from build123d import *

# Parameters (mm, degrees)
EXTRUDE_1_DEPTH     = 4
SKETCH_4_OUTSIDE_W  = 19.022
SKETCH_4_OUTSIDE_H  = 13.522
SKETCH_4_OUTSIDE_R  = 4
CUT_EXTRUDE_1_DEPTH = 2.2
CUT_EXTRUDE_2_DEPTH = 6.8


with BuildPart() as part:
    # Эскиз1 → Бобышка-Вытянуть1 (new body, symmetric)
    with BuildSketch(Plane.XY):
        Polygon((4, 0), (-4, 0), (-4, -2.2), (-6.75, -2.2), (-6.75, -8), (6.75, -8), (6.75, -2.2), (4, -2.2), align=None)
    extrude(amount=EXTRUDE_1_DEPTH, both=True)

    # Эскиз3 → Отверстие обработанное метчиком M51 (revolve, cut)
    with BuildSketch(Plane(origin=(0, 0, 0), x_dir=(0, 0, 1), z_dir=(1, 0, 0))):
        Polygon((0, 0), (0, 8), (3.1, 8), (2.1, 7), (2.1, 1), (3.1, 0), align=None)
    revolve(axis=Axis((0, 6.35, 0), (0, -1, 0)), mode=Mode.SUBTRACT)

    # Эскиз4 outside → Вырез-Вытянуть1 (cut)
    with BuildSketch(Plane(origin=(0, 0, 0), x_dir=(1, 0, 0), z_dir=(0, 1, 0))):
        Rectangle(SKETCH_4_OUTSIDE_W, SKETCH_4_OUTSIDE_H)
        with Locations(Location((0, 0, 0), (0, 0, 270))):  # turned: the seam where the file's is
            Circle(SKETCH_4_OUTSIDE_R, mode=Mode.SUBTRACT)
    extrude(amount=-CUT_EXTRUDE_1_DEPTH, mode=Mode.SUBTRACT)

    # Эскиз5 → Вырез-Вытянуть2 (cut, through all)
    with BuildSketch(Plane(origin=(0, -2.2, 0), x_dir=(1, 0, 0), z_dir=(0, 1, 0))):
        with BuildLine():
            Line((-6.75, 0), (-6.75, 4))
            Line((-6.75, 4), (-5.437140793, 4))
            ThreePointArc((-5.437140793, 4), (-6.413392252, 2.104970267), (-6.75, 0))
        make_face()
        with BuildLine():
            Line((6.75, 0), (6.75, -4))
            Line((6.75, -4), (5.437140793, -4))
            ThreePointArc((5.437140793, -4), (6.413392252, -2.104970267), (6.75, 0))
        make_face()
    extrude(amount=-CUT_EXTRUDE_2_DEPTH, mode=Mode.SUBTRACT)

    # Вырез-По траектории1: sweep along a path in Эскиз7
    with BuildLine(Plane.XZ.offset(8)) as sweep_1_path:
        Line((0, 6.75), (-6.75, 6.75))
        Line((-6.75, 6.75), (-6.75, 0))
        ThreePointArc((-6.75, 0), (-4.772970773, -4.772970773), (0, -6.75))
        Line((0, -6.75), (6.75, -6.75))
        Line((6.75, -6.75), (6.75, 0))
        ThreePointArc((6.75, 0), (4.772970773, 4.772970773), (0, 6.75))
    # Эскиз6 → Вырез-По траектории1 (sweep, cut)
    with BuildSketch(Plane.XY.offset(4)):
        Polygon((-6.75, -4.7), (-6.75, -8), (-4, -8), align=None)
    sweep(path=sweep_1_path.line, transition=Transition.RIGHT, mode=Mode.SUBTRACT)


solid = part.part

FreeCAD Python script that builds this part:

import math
import FreeCAD as App
import Part
import Sketcher
from FreeCAD import Vector
Q = App.Units.Quantity


def add_polygon(sketch, points):
    """Adds a closed chain of lines whose ends are joined by coincident constraints."""
    first, n = sketch.GeometryCount, len(points)
    for a, b in zip(points, points[1:] + points[:1]):
        sketch.addGeometry(Part.LineSegment(App.Vector(*a, 0), App.Vector(*b, 0)), False)
    for i in range(n):
        sketch.addConstraint(Sketcher.Constraint("Coincident", first + i, 2, first + (i + 1) % n, 1))

doc = App.newDocument("Part")
body = doc.addObject("PartDesign::Body", "Body")

# Sketch on XY plane
sketch1 = doc.addObject("Sketcher::SketchObject", "Sketch")
body.addObject(sketch1)
sketch1.AttachmentSupport = (doc.XY_Plane, [""])
sketch1.MapMode = "FlatFace"
add_polygon(sketch1, [(4, 0), (-4, 0), (-4, -2.2), (-6.8, -2.2), (-6.8, -8), (6.8, -8), (6.8, -2.2), (4, -2.2)])  # lines 0-7
sketch1.addConstraint([
    Sketcher.Constraint("Horizontal", 0),
    Sketcher.Constraint("Vertical", 1),
    Sketcher.Constraint("Horizontal", 2),
    Sketcher.Constraint("Vertical", 3),
    Sketcher.Constraint("Horizontal", 4),
    Sketcher.Constraint("Vertical", 5),
    Sketcher.Constraint("Horizontal", 6),
    Sketcher.Constraint("Vertical", 7),
    Sketcher.Constraint("Symmetric", 0, 2, 7, 2, -1, 1),
    Sketcher.Constraint("Symmetric", 2, 2, 5, 2, -2),
    Sketcher.Constraint("DistanceX", 0, 2, 0, 1, Q("8 mm")),
    Sketcher.Constraint("DistanceX", 4, 1, 4, 2, Q("13.5 mm")),
    Sketcher.Constraint("DistanceY", 1, 2, 1, 1, Q("2.2 mm")),
    Sketcher.Constraint("DistanceY", 3, 2, 3, 1, Q("5.8 mm")),
])
pad1 = doc.addObject("PartDesign::Pad", "Pad")
body.addObject(pad1)
pad1.Profile = sketch1
pad1.Length = 8
pad1.Midplane = True

# Sketch on YZ plane
sketch2 = doc.addObject("Sketcher::SketchObject", "Sketch001")
body.addObject(sketch2)
sketch2.AttachmentSupport = (doc.YZ_Plane, [""])
sketch2.MapMode = "FlatFace"
add_polygon(sketch2, [(-8, 0), (0, 0), (0, 3.1), (-1, 2.1), (-7, 2.1), (-8, 3.1)])  # lines 0-5
sketch2.addConstraint([
    Sketcher.Constraint("Horizontal", 0),
    Sketcher.Constraint("Vertical", 1),
    Sketcher.Constraint("Horizontal", 3),
    Sketcher.Constraint("Vertical", 5),
    Sketcher.Constraint("Coincident", 0, 2, -1, 1),
    Sketcher.Constraint("Perpendicular", 2, 4),
    Sketcher.Constraint("Horizontal", 1, 2, 4, 2),
    Sketcher.Constraint("Equal", 2, 4),
    Sketcher.Constraint("DistanceX", 0, 1, 0, 2, Q("8 mm")),
    Sketcher.Constraint("DistanceX", 3, 2, 3, 1, Q("6 mm")),
    Sketcher.Constraint("DistanceY", 1, 1, 1, 2, Q("3.1 mm")),
])
groove = doc.addObject("PartDesign::Groove", "Groove")
body.addObject(groove)
groove.Profile = sketch2
groove.ReferenceAxis = (sketch2, ["H_Axis"])
groove.Angle = 360

# Sketch on XZ plane
sketch3 = doc.addObject("Sketcher::SketchObject", "Sketch002")
body.addObject(sketch3)
sketch3.AttachmentSupport = (doc.XZ_Plane, [""])
sketch3.MapMode = "FlatFace"
add_polygon(sketch3, [(-9.5, -6.8), (-9.5, 6.8), (9.5, 6.8), (9.5, -6.8)])  # lines 0-3
sketch3.addGeometry(Part.Circle(Vector(0, 0, 0), Vector(0, 0, 1), 4), False)  # 4
sketch3.addConstraint([
    Sketcher.Constraint("Vertical", 0),
    Sketcher.Constraint("Horizontal", 1),
    Sketcher.Constraint("Vertical", 2),
    Sketcher.Constraint("Horizontal", 3),
    Sketcher.Constraint("Coincident", 4, 3, -1, 1),
    Sketcher.Constraint("Symmetric", 0, 2, 2, 2, -1, 1),
    Sketcher.Constraint("Diameter", 4, Q("8 mm")),
    Sketcher.Constraint("DistanceX", 1, 1, 1, 2, Q("19.022 mm")),
    Sketcher.Constraint("DistanceY", 0, 1, 0, 2, Q("13.522 mm")),
])
pocket1 = doc.addObject("PartDesign::Pocket", "Pocket")
body.addObject(pocket1)
pocket1.Profile = sketch3
pocket1.Length = 2.2
pocket1.Reversed = True

# Sketch on XZ plane
sketch4 = doc.addObject("Sketcher::SketchObject", "Sketch003")
body.addObject(sketch4)
sketch4.AttachmentSupport = (doc.XZ_Plane, [""])
sketch4.MapMode = "FlatFace"
sketch4.AttachmentOffset = App.Placement(Vector(0, 0, 2.2), App.Rotation())
sketch4.addGeometry([
    Part.LineSegment(Vector(-6.8, -4, 0), Vector(-6.8, 0, 0)),  # 0
    Part.ArcOfCircle(Part.Circle(Vector(0, 0, 0), Vector(0, 0, 1), 6.7), math.radians(180), math.radians(216)),  # 1
    Part.LineSegment(Vector(-5.4, -4, 0), Vector(-6.8, -4, 0)),  # 2
    Part.LineSegment(Vector(6.8, 4, 0), Vector(6.8, 0, 0)),  # 3
    Part.ArcOfCircle(Part.Circle(Vector(0, 0, 0), Vector(0, 0, 1), 6.7), math.radians(0), math.radians(36)),  # 4
    Part.LineSegment(Vector(5.4, 4, 0), Vector(6.8, 4, 0)),  # 5
], False)
sketch4.addConstraint([
    Sketcher.Constraint("Tangent", 0, 2, 1, 1),
    Sketcher.Constraint("Coincident", 1, 2, 2, 1),
    Sketcher.Constraint("Coincident", 2, 2, 0, 1),
    Sketcher.Constraint("Tangent", 3, 2, 4, 1),
    Sketcher.Constraint("Coincident", 4, 2, 5, 1),
    Sketcher.Constraint("Coincident", 5, 2, 3, 1),
    Sketcher.Constraint("Vertical", 0),
    Sketcher.Constraint("Horizontal", 2),
    Sketcher.Constraint("Vertical", 3),
    Sketcher.Constraint("Horizontal", 5),
    Sketcher.Constraint("Coincident", 1, 3, -1, 1),
    Sketcher.Constraint("Coincident", 4, 3, -1, 1),
    Sketcher.Constraint("Equal", 1, 4),
    Sketcher.Constraint("Equal", 2, 5),
    Sketcher.Constraint("DistanceY", 0, 1, 0, 2, Q("4 mm")),
    Sketcher.Constraint("Radius", 1, Q("6.75 mm")),
])
pocket2 = doc.addObject("PartDesign::Pocket", "Pocket001")
body.addObject(pocket2)
pocket2.Profile = sketch4
pocket2.Type = "ThroughAll"
pocket2.Reversed = True

# Sketch on XY plane
sketch5 = doc.addObject("Sketcher::SketchObject", "Sketch004")
body.addObject(sketch5)
sketch5.AttachmentSupport = (doc.XY_Plane, [""])
sketch5.MapMode = "FlatFace"
sketch5.AttachmentOffset = App.Placement(Vector(0, 0, 4), App.Rotation())
add_polygon(sketch5, [(-6.8, -4.7), (-6.8, -8), (-4, -8)])  # lines 0-2
sketch5.addConstraint([
    Sketcher.Constraint("Vertical", 0),
    Sketcher.Constraint("Horizontal", 1),
    Sketcher.Constraint("DistanceY", 0, 2, 0, 1, Q("3.3 mm")),
    Sketcher.Constraint("DistanceY", 0, 2, -1, 1, Q("8 mm")),
    Sketcher.Constraint("DistanceX", 1, 2, -1, 1, Q("4 mm")),
    Sketcher.Constraint("DistanceX", 1, 1, 1, 2, Q("2.75 mm")),
])

# Sketch on XZ plane
sketch6 = doc.addObject("Sketcher::SketchObject", "Sketch005")
body.addObject(sketch6)
sketch6.AttachmentSupport = (doc.XZ_Plane, [""])
sketch6.MapMode = "FlatFace"
sketch6.AttachmentOffset = App.Placement(Vector(0, 0, 8), App.Rotation())
sketch6.addGeometry([
    Part.LineSegment(Vector(0, 7, 0), Vector(-7, 7, 0)),  # 0
    Part.LineSegment(Vector(-7, 7, 0), Vector(-7, 0, 0)),  # 1
    Part.ArcOfCircle(Part.Circle(Vector(0, 0, 0), Vector(0, 0, 1), 7), math.radians(180), math.radians(270)),  # 2
    Part.LineSegment(Vector(0, -7, 0), Vector(7, -7, 0)),  # 3
    Part.LineSegment(Vector(7, -7, 0), Vector(7, 0, 0)),  # 4
    Part.ArcOfCircle(Part.Circle(Vector(0, 0, 0), Vector(0, 0, 1), 7), math.radians(0), math.radians(90)),  # 5
], False)
sketch6.addConstraint([
    Sketcher.Constraint("Coincident", 0, 2, 1, 1),
    Sketcher.Constraint("Tangent", 1, 2, 2, 1),
    Sketcher.Constraint("Tangent", 2, 2, 3, 1),
    Sketcher.Constraint("Coincident", 3, 2, 4, 1),
    Sketcher.Constraint("Tangent", 4, 2, 5, 1),
    Sketcher.Constraint("Tangent", 5, 2, 0, 1),
    Sketcher.Constraint("Horizontal", 0),
    Sketcher.Constraint("Vertical", 1),
    Sketcher.Constraint("Horizontal", 3),
    Sketcher.Constraint("Vertical", 4),
    Sketcher.Constraint("Coincident", 2, 3, -1, 1),
    Sketcher.Constraint("Coincident", 5, 3, -1, 1),
    Sketcher.Constraint("Equal", 2, 5),
    Sketcher.Constraint("Radius", 2, Q("6.75 mm")),
])
doc.recompute()

subtractivepipe = doc.addObject("PartDesign::SubtractivePipe", "SubtractivePipe")
body.addObject(subtractivepipe)
subtractivepipe.Profile = sketch5
subtractivepipe.Spine = (sketch6, ["Edge1", "Edge2", "Edge3", "Edge4", "Edge5", "Edge6"])
subtractivepipe.Transition = "Right corner"

doc.recompute()
